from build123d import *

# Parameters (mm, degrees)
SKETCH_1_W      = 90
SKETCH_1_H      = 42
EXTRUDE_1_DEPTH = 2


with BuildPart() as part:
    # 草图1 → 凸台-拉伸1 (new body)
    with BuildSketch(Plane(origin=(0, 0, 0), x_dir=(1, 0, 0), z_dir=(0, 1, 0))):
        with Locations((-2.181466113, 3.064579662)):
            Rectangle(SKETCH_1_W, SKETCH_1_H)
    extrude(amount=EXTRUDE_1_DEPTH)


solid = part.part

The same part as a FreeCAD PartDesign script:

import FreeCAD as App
import Part
import Sketcher
Q = App.Units.Quantity

doc = App.newDocument("Part")
params = doc.addObject("Spreadsheet::Sheet", "Params")
for row, (alias, value) in enumerate([
    ("sketch1_width", "90 mm"),
    ("sketch1_height", "42 mm"),
    ("pad1_length", "2 mm"),
], start=1):
    params.set(f"A{row}", alias)
    params.set(f"B{row}", "=" + value)
    params.setAlias(f"B{row}", alias)

body = doc.addObject("PartDesign::Body", "Body")

# Sketch on XZ plane
sketch1 = body.newObject("Sketcher::SketchObject", "Sketch")
sketch1.AttachmentSupport = (doc.getObject("XZ_Plane"), [""])
sketch1.MapMode = "FlatFace"
sketch1.addGeometry(Part.LineSegment(App.Vector(-47, -24, 0), App.Vector(-47, 18, 0)), False)
sketch1.addGeometry(Part.LineSegment(App.Vector(-47, 18, 0), App.Vector(43, 18, 0)), False)
sketch1.addGeometry(Part.LineSegment(App.Vector(43, 18, 0), App.Vector(43, -24, 0)), False)
sketch1.addGeometry(Part.LineSegment(App.Vector(43, -24, 0), App.Vector(-47, -24, 0)), False)
sketch1.addConstraint(Sketcher.Constraint("Coincident", 0, 2, 1, 1))
sketch1.addConstraint(Sketcher.Constraint("Coincident", 1, 2, 2, 1))
sketch1.addConstraint(Sketcher.Constraint("Coincident", 2, 2, 3, 1))
sketch1.addConstraint(Sketcher.Constraint("Coincident", 3, 2, 0, 1))
sketch1.addConstraint(Sketcher.Constraint("Vertical", 0))
sketch1.addConstraint(Sketcher.Constraint("Horizontal", 1))
sketch1.addConstraint(Sketcher.Constraint("Vertical", 2))
sketch1.addConstraint(Sketcher.Constraint("Horizontal", 3))
sketch1.addConstraint(Sketcher.Constraint("DistanceX", 1, 1, 1, 2, Q("90 mm")))
sketch1.addConstraint(Sketcher.Constraint("DistanceY", 0, 1, 0, 2, Q("42 mm")))
sketch1.addConstraint(Sketcher.Constraint("DistanceY", -1, 1, 0, 2, Q("17.93542 mm")))
sketch1.addConstraint(Sketcher.Constraint("DistanceX", 0, 2, -1, 1, Q("47.181466 mm")))
sketch1.setExpression("Constraints[8]", "Params.sketch1_width")
sketch1.setExpression("Constraints[9]", "Params.sketch1_height")
pad1 = body.newObject("PartDesign::Pad", "Pad")
pad1.Profile = sketch1
pad1.setExpression("Length", "Params.pad1_length")
pad1.Reversed = True

doc.recompute()
